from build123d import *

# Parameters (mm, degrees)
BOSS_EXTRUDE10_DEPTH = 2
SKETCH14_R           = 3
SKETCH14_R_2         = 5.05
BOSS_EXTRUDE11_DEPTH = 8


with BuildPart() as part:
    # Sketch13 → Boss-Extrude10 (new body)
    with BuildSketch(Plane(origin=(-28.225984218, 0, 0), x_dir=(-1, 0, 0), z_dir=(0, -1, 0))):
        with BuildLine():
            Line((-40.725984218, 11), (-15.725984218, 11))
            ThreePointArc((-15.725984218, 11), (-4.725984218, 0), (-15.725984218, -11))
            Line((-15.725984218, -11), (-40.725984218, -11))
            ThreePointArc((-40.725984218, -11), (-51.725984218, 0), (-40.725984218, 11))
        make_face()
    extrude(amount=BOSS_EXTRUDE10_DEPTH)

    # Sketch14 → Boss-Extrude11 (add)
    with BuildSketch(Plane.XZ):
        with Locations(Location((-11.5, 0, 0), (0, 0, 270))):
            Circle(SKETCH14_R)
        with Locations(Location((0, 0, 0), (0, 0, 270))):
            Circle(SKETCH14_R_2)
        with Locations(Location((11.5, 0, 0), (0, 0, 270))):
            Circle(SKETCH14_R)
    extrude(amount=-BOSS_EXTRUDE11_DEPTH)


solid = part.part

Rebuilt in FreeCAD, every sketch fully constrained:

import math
import FreeCAD as App
import Part
import Sketcher
from FreeCAD import Vector

doc = App.newDocument("Part")
body = doc.addObject("PartDesign::Body", "Body")

sketch1 = doc.addObject("Sketcher::SketchObject", "Sketch")
body.addObject(sketch1)
sketch1.AttachmentSupport = (doc.XZ_Plane, [""])
sketch1.MapMode = "FlatFace"
sketch1.addGeometry([
    Part.LineSegment(Vector(-12, -11, 0), Vector(12, -11, 0)),
    Part.ArcOfCircle(Part.Circle(Vector(12, 0, 0), Vector(0, 0, 1), 11), math.radians(-90), math.radians(90)),
    Part.LineSegment(Vector(12, 11, 0), Vector(-12, 11, 0)),
    Part.ArcOfCircle(Part.Circle(Vector(-12, 0, 0), Vector(0, 0, 1), 11), math.radians(90), math.radians(270)),
], False)
sketch1.addConstraint([
    Sketcher.Constraint("Tangent", 0, 2, 1, 1),
    Sketcher.Constraint("Tangent", 1, 2, 2, 1),
    Sketcher.Constraint("Tangent", 2, 2, 3, 1),
    Sketcher.Constraint("Tangent", 3, 2, 0, 1),
    Sketcher.Constraint("Horizontal", 0),
    Sketcher.Constraint("Horizontal", 2),
    Sketcher.Constraint("Symmetric", 1, 3, 3, 3, -1, 1),
    Sketcher.Constraint("Radius", 1, 11.0),
    Sketcher.Constraint("DistanceX", 0, 1, 0, 2, 25.0),
])
pad1 = doc.addObject("PartDesign::Pad", "Pad")
body.addObject(pad1)
pad1.Profile = sketch1
pad1.Length = 2

sketch2 = doc.addObject("Sketcher::SketchObject", "Sketch001")
body.addObject(sketch2)
sketch2.AttachmentSupport = (doc.XZ_Plane, [""])
sketch2.MapMode = "FlatFace"
sketch2.addGeometry([
    Part.Circle(Vector(-11.5, 0, 0), Vector(0, 0, 1), 3),
    Part.Circle(Vector(0, 0, 0), Vector(0, 0, 1), 5),
    Part.Circle(Vector(11.5, 0, 0), Vector(0, 0, 1), 3),
], False)
sketch2.addConstraint([
    Sketcher.Constraint("Coincident", 1, 3, -1, 1),
    Sketcher.Constraint("Equal", 0, 2),
    Sketcher.Constraint("Symmetric", 0, 3, 2, 3, -1, 1),
    Sketcher.Constraint("PointOnObject", 0, 3, -1),
    Sketcher.Constraint("Diameter", 0, 6.0),
    Sketcher.Constraint("Diameter", 1, 10.1),
    Sketcher.Constraint("DistanceX", 0, 3, 2, 3, 23.0),
])
pad2 = doc.addObject("PartDesign::Pad", "Pad001")
body.addObject(pad2)
pad2.Profile = sketch2
pad2.Length = 8
pad2.Reversed = True

doc.recompute()
